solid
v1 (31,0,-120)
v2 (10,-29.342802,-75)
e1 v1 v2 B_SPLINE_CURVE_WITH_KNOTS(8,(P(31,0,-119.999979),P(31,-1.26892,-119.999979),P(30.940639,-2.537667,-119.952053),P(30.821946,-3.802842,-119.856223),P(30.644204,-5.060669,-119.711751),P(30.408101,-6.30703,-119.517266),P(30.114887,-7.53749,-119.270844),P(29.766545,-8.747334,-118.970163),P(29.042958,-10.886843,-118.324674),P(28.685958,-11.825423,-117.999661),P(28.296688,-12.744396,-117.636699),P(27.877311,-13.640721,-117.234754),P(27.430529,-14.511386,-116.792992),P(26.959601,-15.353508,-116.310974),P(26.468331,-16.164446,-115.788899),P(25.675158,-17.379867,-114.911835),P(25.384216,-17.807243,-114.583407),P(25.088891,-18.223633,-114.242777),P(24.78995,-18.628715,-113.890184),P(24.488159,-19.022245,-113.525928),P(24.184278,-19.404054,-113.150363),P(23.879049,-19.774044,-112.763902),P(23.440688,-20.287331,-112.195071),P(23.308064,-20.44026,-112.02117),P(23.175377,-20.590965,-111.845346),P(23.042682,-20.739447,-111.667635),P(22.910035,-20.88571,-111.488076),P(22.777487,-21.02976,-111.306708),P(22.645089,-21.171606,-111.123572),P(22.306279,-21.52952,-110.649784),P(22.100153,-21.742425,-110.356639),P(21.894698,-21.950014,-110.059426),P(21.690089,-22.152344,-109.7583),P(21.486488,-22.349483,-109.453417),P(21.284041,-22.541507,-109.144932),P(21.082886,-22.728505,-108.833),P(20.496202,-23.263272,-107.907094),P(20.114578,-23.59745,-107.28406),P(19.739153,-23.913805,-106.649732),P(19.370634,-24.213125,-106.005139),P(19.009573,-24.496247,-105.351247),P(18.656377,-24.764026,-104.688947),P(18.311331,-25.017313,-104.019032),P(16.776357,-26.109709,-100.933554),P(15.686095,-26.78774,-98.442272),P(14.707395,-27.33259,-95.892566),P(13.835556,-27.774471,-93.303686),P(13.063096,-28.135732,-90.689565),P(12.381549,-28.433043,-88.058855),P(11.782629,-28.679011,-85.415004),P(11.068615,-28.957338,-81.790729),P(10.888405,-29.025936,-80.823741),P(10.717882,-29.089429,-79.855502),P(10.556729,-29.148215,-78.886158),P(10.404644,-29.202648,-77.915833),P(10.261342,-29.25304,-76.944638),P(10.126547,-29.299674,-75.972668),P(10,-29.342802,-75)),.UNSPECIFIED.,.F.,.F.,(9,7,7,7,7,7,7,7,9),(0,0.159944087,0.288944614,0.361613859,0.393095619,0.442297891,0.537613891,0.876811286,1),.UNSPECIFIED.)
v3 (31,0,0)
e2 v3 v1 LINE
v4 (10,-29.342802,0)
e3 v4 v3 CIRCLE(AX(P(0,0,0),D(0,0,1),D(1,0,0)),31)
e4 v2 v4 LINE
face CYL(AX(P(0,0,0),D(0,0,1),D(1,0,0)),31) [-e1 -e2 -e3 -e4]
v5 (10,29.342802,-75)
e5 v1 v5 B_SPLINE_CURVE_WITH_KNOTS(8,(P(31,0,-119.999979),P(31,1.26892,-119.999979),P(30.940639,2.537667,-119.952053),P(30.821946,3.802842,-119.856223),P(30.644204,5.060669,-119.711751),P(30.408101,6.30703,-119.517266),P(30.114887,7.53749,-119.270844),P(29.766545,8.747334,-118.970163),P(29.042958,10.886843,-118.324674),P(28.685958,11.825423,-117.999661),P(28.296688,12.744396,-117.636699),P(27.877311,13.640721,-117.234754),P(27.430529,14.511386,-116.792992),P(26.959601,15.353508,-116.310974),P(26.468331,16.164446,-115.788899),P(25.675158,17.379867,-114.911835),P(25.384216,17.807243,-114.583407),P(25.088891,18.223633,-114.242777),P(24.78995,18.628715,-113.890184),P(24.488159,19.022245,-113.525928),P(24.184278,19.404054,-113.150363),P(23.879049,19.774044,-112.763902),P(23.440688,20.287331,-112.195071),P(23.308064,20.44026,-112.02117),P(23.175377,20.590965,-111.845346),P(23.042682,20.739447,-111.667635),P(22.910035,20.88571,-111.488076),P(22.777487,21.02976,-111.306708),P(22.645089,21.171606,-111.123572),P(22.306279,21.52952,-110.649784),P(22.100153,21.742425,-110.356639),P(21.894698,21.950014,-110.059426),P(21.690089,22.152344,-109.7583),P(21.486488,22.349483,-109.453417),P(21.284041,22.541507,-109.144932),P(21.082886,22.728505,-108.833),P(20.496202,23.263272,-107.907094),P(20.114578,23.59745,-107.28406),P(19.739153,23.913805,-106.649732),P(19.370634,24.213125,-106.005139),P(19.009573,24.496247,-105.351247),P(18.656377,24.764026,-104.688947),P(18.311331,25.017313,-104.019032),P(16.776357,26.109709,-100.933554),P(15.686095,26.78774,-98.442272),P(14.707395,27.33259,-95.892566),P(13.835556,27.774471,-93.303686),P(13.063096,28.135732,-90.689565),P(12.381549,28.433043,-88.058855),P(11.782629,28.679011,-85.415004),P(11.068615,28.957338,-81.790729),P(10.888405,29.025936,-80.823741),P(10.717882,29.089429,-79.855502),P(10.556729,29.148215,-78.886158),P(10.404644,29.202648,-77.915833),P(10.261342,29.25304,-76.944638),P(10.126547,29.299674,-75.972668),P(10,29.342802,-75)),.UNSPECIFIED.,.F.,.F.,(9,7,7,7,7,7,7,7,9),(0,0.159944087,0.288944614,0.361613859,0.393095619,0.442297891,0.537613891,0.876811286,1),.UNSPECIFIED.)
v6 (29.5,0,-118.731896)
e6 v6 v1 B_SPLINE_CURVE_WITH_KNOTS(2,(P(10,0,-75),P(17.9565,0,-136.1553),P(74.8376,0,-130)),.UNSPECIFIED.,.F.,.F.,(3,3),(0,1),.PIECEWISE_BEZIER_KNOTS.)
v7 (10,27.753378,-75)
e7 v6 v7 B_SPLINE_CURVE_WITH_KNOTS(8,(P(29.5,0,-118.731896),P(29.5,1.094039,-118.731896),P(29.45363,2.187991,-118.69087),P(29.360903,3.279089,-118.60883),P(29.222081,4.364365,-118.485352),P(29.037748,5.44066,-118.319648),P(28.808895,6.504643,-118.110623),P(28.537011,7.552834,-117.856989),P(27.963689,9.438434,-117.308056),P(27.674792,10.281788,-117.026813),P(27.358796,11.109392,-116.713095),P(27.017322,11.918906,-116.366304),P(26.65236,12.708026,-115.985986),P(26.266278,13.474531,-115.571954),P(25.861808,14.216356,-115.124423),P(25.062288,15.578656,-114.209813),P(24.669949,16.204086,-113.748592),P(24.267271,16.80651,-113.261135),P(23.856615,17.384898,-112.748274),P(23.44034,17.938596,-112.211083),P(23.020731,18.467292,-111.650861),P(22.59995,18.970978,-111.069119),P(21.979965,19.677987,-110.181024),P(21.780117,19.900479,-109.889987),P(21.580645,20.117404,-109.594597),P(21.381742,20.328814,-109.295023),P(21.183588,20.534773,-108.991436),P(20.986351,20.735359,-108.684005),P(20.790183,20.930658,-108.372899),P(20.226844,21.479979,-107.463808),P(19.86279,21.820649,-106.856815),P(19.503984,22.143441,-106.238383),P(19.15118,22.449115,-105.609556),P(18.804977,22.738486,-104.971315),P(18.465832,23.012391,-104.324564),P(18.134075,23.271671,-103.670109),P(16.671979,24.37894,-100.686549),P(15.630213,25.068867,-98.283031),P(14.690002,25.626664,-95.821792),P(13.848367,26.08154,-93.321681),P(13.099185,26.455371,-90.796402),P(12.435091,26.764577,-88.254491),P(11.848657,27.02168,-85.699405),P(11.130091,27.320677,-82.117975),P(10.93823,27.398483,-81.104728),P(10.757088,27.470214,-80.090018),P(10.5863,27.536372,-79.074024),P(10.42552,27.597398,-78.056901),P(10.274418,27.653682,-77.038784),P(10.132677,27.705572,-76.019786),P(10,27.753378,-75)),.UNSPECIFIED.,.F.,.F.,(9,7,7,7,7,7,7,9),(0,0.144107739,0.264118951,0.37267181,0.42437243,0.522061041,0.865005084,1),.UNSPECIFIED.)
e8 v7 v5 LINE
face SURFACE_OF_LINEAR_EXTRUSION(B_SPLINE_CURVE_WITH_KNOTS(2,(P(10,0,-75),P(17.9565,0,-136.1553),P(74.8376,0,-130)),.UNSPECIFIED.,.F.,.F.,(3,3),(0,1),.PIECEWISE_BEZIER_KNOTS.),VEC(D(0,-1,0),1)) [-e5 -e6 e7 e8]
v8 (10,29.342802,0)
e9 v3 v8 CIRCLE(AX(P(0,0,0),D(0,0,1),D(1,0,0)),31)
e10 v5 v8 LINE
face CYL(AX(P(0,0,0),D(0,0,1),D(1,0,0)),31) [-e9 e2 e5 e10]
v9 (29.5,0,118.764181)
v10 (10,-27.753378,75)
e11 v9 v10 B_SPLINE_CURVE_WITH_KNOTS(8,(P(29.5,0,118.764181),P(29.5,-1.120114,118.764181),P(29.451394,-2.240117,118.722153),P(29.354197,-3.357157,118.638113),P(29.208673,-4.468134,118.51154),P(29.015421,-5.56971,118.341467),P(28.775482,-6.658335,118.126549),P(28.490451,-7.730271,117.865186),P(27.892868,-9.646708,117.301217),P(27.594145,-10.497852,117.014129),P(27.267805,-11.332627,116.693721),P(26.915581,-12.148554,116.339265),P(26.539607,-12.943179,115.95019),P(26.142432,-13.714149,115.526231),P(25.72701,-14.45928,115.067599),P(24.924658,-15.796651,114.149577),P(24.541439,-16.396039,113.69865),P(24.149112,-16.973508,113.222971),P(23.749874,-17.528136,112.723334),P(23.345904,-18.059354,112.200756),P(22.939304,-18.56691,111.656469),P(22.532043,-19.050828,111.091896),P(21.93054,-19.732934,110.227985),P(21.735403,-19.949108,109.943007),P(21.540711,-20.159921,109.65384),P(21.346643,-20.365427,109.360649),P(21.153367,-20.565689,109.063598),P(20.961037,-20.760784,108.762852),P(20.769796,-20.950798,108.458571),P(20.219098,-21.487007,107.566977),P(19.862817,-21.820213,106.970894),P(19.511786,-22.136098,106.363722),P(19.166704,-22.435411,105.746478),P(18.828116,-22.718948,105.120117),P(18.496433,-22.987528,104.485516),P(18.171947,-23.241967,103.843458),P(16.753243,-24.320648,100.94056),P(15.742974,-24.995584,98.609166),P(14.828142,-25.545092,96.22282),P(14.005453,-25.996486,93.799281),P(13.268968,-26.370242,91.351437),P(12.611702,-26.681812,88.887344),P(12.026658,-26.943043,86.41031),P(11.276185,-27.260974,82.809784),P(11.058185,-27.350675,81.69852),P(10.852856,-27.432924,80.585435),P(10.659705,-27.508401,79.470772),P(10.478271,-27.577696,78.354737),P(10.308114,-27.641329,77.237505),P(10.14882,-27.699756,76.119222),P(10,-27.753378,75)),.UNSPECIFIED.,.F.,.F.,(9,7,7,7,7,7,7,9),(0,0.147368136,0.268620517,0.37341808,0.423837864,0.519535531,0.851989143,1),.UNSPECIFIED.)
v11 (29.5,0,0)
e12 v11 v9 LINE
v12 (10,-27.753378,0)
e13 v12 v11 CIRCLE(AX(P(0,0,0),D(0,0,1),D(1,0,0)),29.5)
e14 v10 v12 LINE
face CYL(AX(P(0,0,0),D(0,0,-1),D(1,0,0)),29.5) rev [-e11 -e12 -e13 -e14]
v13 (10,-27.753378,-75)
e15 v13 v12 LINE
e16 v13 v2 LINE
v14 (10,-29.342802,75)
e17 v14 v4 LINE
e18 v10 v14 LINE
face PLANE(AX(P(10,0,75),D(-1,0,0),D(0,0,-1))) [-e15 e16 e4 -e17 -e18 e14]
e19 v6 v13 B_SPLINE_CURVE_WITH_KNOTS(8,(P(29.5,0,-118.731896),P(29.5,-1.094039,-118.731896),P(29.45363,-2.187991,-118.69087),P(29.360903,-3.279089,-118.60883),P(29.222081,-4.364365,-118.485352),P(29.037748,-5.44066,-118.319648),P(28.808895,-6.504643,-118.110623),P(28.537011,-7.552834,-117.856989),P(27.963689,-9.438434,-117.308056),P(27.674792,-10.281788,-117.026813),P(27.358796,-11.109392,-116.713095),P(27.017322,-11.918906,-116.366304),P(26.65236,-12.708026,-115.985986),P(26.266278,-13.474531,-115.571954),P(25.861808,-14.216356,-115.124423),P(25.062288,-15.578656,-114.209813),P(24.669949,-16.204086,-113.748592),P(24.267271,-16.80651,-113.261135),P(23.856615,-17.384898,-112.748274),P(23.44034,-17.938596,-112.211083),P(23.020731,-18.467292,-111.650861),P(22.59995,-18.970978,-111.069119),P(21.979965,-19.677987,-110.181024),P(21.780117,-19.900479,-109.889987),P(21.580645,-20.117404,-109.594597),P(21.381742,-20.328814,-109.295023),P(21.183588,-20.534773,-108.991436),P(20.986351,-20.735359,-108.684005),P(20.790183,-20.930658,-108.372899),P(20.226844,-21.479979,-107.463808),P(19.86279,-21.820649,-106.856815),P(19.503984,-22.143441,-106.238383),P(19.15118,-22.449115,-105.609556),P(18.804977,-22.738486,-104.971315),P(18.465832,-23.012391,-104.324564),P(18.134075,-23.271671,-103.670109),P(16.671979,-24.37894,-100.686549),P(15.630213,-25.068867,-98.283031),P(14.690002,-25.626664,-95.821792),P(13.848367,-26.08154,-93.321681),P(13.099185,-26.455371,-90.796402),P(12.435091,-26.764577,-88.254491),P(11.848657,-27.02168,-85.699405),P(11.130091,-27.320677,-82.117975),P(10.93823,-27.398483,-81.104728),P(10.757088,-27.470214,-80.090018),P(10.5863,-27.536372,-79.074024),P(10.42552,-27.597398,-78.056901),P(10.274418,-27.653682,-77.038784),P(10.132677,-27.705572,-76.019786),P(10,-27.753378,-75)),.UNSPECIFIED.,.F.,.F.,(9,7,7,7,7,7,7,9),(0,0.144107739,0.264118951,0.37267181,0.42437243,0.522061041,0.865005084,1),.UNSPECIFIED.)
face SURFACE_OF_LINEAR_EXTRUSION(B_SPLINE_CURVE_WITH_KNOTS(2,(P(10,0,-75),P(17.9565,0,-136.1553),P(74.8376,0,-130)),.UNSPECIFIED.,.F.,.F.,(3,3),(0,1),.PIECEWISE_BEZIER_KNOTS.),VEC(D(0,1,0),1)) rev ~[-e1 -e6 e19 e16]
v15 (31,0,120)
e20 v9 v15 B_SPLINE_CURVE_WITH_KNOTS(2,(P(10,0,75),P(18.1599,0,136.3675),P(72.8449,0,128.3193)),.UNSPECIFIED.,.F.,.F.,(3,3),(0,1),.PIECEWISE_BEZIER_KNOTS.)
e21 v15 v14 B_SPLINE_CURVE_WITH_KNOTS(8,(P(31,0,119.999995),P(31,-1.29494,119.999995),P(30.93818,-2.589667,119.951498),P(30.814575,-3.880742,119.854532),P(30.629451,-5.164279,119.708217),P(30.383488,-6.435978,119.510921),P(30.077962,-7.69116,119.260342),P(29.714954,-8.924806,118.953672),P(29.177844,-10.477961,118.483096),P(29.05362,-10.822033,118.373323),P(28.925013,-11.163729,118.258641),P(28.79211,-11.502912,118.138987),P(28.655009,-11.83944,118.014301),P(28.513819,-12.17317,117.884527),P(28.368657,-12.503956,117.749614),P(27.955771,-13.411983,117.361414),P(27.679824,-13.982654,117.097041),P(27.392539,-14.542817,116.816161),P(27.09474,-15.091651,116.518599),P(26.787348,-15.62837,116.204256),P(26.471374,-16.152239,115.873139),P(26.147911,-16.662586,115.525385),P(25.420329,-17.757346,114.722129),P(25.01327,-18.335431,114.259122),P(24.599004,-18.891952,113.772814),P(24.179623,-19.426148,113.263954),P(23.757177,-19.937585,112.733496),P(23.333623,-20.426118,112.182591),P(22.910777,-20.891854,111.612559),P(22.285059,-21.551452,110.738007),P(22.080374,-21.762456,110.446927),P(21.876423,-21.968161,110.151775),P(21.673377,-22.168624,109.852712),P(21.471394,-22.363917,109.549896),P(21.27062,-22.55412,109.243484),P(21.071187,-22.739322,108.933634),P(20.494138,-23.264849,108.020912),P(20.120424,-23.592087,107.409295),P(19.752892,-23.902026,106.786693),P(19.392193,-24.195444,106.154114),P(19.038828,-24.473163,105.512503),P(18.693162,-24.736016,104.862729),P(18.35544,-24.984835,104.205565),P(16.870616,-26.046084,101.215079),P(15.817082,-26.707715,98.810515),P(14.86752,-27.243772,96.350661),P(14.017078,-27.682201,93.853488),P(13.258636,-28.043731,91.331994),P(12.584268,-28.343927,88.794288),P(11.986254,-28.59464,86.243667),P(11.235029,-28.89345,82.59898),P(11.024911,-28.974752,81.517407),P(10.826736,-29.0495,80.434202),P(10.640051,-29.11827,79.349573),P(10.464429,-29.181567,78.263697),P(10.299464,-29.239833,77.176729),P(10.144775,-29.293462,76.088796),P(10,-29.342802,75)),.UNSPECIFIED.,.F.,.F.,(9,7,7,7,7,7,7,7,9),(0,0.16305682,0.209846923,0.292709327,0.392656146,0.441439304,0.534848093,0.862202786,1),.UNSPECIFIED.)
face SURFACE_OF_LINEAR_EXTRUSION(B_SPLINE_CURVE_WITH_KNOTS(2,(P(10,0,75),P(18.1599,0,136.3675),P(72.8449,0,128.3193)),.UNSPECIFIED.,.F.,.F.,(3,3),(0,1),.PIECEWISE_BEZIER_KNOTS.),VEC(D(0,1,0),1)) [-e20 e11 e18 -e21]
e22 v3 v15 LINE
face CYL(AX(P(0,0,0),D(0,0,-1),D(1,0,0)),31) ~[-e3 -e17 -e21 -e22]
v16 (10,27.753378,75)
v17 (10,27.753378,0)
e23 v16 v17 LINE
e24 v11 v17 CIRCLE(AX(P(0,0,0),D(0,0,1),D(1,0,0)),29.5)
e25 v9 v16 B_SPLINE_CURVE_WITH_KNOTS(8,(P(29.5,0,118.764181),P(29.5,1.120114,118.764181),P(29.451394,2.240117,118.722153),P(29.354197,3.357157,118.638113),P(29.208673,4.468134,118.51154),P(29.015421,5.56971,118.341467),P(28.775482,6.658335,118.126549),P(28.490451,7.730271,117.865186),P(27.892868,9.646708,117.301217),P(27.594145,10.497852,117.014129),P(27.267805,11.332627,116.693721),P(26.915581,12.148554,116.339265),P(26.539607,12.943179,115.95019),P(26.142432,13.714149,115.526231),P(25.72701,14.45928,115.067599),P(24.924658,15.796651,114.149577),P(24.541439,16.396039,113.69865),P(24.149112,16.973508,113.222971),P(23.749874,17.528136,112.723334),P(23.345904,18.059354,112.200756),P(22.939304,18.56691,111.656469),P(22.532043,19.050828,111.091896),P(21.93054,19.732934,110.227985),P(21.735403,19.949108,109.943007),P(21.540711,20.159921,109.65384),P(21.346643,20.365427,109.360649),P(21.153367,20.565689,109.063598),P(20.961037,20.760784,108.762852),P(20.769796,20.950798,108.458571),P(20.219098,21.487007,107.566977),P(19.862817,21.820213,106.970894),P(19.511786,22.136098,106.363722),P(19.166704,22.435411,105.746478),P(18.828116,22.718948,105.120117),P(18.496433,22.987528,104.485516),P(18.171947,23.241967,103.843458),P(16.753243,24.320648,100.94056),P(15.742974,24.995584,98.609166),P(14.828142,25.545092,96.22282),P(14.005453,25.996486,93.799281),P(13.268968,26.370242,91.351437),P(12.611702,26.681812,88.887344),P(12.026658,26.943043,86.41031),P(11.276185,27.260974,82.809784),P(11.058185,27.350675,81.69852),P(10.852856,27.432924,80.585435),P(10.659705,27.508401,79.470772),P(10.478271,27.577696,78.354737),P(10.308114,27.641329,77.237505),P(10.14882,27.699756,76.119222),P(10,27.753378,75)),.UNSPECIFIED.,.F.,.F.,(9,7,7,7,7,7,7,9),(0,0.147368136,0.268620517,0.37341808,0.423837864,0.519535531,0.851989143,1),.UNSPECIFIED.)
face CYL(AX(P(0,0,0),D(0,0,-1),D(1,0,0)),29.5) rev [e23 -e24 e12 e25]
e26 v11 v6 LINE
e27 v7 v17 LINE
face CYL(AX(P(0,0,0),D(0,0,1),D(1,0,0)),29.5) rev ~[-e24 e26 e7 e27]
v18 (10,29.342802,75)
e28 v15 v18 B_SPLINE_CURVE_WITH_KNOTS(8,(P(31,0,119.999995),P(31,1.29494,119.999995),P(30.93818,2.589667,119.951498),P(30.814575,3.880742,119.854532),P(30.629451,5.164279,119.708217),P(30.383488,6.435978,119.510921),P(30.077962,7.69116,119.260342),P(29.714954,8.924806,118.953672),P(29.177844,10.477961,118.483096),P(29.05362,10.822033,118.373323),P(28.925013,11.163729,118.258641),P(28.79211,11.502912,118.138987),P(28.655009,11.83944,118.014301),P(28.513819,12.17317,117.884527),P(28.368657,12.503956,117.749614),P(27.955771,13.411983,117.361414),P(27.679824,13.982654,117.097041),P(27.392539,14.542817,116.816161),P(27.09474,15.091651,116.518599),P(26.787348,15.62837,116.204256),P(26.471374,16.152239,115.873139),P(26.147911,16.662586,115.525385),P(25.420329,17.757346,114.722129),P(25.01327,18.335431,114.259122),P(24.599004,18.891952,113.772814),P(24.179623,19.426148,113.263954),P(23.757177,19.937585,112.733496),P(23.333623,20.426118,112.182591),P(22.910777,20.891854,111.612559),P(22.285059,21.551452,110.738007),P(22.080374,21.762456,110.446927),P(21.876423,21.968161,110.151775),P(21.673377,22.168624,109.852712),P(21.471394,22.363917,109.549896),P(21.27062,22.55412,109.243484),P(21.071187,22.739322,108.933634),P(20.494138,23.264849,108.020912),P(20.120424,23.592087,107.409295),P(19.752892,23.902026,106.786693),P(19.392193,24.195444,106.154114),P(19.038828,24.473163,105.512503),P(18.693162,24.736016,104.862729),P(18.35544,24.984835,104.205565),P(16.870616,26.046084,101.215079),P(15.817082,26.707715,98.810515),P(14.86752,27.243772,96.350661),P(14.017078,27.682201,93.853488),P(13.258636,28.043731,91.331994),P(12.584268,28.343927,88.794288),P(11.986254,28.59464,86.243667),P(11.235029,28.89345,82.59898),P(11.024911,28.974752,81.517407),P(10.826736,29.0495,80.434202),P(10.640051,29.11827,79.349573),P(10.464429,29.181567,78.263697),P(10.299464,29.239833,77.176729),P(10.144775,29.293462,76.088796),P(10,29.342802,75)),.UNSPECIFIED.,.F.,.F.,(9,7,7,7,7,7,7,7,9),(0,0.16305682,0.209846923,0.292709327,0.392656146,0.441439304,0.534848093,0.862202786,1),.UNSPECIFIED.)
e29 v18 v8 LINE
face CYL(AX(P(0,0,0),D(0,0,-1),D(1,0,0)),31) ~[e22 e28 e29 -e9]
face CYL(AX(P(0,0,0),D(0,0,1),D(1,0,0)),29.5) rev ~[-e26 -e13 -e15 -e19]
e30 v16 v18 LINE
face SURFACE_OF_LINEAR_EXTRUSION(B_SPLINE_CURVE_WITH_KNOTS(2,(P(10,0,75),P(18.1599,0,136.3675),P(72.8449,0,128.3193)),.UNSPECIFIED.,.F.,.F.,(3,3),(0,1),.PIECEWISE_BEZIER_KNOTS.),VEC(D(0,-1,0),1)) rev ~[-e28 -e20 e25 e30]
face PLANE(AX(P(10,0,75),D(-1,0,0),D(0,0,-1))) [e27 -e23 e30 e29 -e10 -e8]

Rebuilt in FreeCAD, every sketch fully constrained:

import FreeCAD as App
import Part
import Sketcher
from FreeCAD import Vector

doc = App.newDocument("Part")
params = doc.addObject("Spreadsheet::Sheet", "Params")
for row, (alias, value) in enumerate([
    ("sketch1_diameter", "62 mm"),
    ("sketch1_diameter2", "59 mm"),
    ("pad1_length", "300 mm"),
    ("sketch2_height", "30 mm"),
    ("pocket1_length", "100 mm"),
], start=1):
    params.set(f"A{row}", alias)
    params.set(f"B{row}", "=" + value)
    params.setAlias(f"B{row}", alias)

body = doc.addObject("PartDesign::Body", "Body")

sketch1 = body.newObject("Sketcher::SketchObject", "Sketch")
sketch1.AttachmentSupport = (doc.getObject("XY_Plane"), [""])
sketch1.MapMode = "FlatFace"
sketch1.addGeometry([
    Part.Circle(Vector(0, 0, 0), Vector(0, 0, 1), 31),
    Part.Circle(Vector(0, 0, 0), Vector(0, 0, 1), 30),
], False)
sketch1.addConstraint([
    Sketcher.Constraint("Coincident", 0, 3, -1, 1),
    Sketcher.Constraint("Coincident", 1, 3, -1, 1),
    Sketcher.Constraint("Diameter", 0, 62.0),
    Sketcher.Constraint("Diameter", 1, 59.0),
])
sketch1.setExpression("Constraints[2]", "Params.sketch1_diameter")
sketch1.setExpression("Constraints[3]", "Params.sketch1_diameter2")
pad1 = body.newObject("PartDesign::Pad", "Pad")
pad1.Profile = sketch1
pad1.setExpression("Length", "Params.pad1_length")
pad1.Midplane = True

sketch2 = body.newObject("Sketcher::SketchObject", "Sketch001")
sketch2.AttachmentSupport = (doc.getObject("XZ_Plane"), [""])
sketch2.MapMode = "FlatFace"
sketch2.addGeometry([
    Part.BSplineCurve([Vector(10, 75, 0), Vector(14.234733, 106.847813, 0), Vector(31.000002, 119.999997, 0)], [3, 3], [0, 0.518968716], False, 2, [1, 1, 1], False),
    Part.LineSegment(Vector(10, 75, 0), Vector(10, -75, 0)),
    Part.BSplineCurve([Vector(10, -75, 0), Vector(14.077013, -106.336764, 0), Vector(31.00001, -119.999988, 0)], [3, 3], [0, 0.512412886], False, 2, [1, 1, 1], False),
    Part.LineSegment(Vector(31, -120, 0), Vector(31, -150, 0)),
    Part.LineSegment(Vector(31, -150, 0), Vector(-31, -150, 0)),
    Part.LineSegment(Vector(-31, -150, 0), Vector(-31, 150, 0)),
    Part.LineSegment(Vector(-31, 150, 0), Vector(31, 150, 0)),
    Part.LineSegment(Vector(31, 150, 0), Vector(31, 120, 0)),
], False)
sketch2.addConstraint([
    Sketcher.Constraint("Block", 0),
    Sketcher.Constraint("Block", 2),
    Sketcher.Constraint("Coincident", 0, 1, 1, 1),
    Sketcher.Constraint("Coincident", 1, 2, 2, 1),
    Sketcher.Constraint("Coincident", 2, 2, 3, 1),
    Sketcher.Constraint("Coincident", 3, 2, 4, 1),
    Sketcher.Constraint("Coincident", 4, 2, 5, 1),
    Sketcher.Constraint("Coincident", 5, 2, 6, 1),
    Sketcher.Constraint("Coincident", 6, 2, 7, 1),
    Sketcher.Constraint("Coincident", 7, 2, 0, 2),
    Sketcher.Constraint("Vertical", 3),
    Sketcher.Constraint("Horizontal", 4),
    Sketcher.Constraint("Vertical", 5),
    Sketcher.Constraint("Horizontal", 6),
    Sketcher.Constraint("Vertical", 7),
    Sketcher.Constraint("Symmetric", 3, 2, 5, 2, -1, 1),
    Sketcher.Constraint("DistanceY", 3, 2, 3, 1, 30.0),
])
sketch2.setExpression("Constraints[16]", "Params.sketch2_height")
pocket1 = body.newObject("PartDesign::Pocket", "Pocket")
pocket1.Profile = sketch2
pocket1.setExpression("Length", "Params.pocket1_length")
pocket1.Midplane = True

doc.recompute()
